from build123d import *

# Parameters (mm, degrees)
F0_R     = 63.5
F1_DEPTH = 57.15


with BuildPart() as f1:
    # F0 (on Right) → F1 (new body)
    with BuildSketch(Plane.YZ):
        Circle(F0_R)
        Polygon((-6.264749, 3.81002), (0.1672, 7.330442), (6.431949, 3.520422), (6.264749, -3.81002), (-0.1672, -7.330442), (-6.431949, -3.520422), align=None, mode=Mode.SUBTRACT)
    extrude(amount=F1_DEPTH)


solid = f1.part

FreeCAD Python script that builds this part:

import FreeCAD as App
import Part
import Sketcher
from FreeCAD import Vector
Q = App.Units.Quantity


def add_polygon(sketch, points):
    """Adds a closed chain of lines whose ends are joined by coincident constraints."""
    first, n = sketch.GeometryCount, len(points)
    for a, b in zip(points, points[1:] + points[:1]):
        sketch.addGeometry(Part.LineSegment(App.Vector(*a, 0), App.Vector(*b, 0)), False)
    for i in range(n):
        sketch.addConstraint(Sketcher.Constraint("Coincident", first + i, 2, first + (i + 1) % n, 1))

doc = App.newDocument("Part")
params = doc.addObject("Spreadsheet::Sheet", "Params")
for row, (alias, value) in enumerate([
    ("sketch1_diameter", "5 in"),
    ("pad1_length", "2.25 in"),
], start=1):
    params.set(f"A{row}", alias)
    params.set(f"B{row}", "=" + value)
    params.setAlias(f"B{row}", alias)

body = doc.addObject("PartDesign::Body", "Body")

sketch1 = doc.addObject("Sketcher::SketchObject", "Sketch")
body.addObject(sketch1)
sketch1.AttachmentSupport = (doc.YZ_Plane, [""])
sketch1.MapMode = "FlatFace"
sketch1.addGeometry(Part.Circle(Vector(0, 0, 0), Vector(0, 0, 1), 63.5), False)
add_polygon(sketch1, [(-6.431949, -3.520422), (-6.264749, 3.81002), (0.1672, 7.330442), (6.431949, 3.520422), (6.264749, -3.81002), (-0.1672, -7.330442)])
sketch1.addConstraint([
    Sketcher.Constraint("Coincident", 0, 3, -1, 1),
    Sketcher.Constraint("Symmetric", 1, 2, 4, 2, -1, 1),
    Sketcher.Constraint("Symmetric", 2, 2, 5, 2, -1, 1),
    Sketcher.Constraint("Symmetric", 3, 2, 6, 2, -1, 1),
    Sketcher.Constraint("Equal", 1, 2),
    Sketcher.Constraint("Equal", 2, 3),
    Sketcher.Constraint("Diameter", 0, Q("5 in")),
    Sketcher.Constraint("DistanceY", -1, 1, 2, 2, Q("0.2886001 in")),
    Sketcher.Constraint("DistanceY", 4, 2, 3, 2, Q("0.2886001 in")),
    Sketcher.Constraint("DistanceX", -1, 1, 2, 2, Q("0.1672 mm")),
    Sketcher.Constraint("DistanceX", 1, 2, 3, 2, Q("12.696698 mm")),
])
sketch1.setExpression("Constraints[12]", "Params.sketch1_diameter")
pad1 = doc.addObject("PartDesign::Pad", "Pad")
body.addObject(pad1)
pad1.Profile = sketch1
pad1.setExpression("Length", "Params.pad1_length")

doc.recompute()
